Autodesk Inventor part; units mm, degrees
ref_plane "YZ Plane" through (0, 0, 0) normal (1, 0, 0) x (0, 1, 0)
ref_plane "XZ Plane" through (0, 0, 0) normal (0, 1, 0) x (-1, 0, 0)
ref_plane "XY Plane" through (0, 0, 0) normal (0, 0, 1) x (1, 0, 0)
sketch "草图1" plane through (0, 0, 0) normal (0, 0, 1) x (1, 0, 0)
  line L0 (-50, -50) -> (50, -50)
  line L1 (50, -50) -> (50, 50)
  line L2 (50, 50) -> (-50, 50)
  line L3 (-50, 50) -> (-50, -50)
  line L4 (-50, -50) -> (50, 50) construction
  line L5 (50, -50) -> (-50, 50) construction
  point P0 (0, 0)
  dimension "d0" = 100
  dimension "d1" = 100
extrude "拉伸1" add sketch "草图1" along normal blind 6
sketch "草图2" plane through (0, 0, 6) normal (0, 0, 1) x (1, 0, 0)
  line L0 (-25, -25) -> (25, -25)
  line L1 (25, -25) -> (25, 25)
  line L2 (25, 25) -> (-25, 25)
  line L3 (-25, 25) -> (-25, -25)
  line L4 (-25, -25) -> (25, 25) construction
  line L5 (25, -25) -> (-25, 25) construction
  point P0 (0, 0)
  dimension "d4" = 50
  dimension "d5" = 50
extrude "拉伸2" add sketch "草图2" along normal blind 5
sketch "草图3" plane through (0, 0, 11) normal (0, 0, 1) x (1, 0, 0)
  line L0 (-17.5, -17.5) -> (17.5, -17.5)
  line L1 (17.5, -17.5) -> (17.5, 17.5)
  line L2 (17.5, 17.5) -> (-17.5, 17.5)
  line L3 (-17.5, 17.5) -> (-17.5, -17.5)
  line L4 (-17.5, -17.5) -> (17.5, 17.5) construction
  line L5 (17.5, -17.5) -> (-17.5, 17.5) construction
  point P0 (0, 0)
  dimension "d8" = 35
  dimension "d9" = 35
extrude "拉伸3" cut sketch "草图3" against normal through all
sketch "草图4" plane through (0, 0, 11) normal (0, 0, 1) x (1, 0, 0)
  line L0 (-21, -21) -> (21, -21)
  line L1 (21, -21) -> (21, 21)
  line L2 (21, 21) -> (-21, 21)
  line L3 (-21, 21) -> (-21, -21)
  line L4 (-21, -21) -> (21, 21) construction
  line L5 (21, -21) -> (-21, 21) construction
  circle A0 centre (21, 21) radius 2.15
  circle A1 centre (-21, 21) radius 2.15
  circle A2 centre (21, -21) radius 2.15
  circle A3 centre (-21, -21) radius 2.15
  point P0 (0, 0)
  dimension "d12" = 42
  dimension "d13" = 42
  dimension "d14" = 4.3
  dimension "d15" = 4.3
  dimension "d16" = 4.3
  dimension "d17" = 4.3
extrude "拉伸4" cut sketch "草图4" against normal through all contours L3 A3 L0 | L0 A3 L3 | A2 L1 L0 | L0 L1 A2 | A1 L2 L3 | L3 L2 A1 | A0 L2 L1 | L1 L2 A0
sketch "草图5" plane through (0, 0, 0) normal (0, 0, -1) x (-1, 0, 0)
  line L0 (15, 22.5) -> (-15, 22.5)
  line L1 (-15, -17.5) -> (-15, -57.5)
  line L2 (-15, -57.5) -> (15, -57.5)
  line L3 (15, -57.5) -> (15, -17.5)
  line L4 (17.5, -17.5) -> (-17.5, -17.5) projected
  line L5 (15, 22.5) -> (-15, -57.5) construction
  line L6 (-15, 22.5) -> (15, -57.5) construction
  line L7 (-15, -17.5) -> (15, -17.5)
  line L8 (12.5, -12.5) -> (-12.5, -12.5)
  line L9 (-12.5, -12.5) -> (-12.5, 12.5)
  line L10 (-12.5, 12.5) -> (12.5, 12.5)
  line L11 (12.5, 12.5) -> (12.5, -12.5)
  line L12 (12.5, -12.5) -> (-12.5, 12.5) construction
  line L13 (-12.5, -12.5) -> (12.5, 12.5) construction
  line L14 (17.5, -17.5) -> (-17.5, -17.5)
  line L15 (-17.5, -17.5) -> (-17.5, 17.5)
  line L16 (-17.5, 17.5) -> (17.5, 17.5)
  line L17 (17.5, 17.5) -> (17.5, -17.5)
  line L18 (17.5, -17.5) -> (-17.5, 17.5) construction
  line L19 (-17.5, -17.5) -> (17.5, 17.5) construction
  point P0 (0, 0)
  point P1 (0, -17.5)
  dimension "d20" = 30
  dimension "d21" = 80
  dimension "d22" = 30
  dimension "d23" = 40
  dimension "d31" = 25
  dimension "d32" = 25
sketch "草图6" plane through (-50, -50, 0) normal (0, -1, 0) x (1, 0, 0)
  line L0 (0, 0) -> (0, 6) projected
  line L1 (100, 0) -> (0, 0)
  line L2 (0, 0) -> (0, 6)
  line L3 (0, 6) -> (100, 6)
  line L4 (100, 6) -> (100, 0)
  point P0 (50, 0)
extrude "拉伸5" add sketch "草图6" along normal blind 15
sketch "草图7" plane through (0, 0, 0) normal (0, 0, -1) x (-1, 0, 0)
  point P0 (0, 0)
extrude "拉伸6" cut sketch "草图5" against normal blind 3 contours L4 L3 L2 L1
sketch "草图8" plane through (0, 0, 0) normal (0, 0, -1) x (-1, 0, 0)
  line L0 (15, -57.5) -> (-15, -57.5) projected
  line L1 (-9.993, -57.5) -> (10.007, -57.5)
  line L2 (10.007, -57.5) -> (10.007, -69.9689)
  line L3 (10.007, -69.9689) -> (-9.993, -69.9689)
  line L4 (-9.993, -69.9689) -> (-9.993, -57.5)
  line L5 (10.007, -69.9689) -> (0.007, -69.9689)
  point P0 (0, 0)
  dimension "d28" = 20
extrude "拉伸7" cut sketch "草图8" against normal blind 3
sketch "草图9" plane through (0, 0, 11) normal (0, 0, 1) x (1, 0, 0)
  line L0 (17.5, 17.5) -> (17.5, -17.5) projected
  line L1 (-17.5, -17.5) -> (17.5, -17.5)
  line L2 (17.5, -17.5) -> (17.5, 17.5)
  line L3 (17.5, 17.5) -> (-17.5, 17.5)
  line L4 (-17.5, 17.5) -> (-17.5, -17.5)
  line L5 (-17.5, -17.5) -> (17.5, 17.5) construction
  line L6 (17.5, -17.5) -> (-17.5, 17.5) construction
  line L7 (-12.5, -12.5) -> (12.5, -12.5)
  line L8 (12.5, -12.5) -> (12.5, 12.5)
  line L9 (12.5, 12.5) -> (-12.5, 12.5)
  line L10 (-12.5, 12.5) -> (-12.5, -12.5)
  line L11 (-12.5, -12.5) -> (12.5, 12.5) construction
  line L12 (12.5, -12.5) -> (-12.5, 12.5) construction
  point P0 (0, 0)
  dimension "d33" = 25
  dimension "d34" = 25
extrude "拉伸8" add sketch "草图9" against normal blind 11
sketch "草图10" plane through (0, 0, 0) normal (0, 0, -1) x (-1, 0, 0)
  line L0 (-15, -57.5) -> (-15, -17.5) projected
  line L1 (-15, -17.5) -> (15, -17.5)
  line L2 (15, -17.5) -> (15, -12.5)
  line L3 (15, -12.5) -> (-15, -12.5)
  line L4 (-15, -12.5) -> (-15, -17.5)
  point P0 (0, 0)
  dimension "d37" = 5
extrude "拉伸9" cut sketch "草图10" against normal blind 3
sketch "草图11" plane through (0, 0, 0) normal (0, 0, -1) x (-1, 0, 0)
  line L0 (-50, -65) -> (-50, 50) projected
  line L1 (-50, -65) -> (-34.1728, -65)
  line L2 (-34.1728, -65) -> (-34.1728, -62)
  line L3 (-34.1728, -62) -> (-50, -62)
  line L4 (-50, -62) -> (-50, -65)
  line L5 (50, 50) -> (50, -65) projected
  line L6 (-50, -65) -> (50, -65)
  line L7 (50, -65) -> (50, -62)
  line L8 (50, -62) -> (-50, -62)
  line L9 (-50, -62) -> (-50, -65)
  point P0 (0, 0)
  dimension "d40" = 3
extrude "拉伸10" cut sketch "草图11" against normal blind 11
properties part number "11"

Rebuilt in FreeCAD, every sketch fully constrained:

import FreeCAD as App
import Part
import Sketcher

V = App.Vector
Q = App.Units.Quantity

doc = App.newDocument("Part")
body = doc.addObject("PartDesign::Body", "Body")

# Sketch on XY plane
sketch1 = doc.addObject("Sketcher::SketchObject", "Sketch")
body.addObject(sketch1)
sketch1.AttachmentSupport = (doc.XY_Plane, [""])
sketch1.MapMode = "FlatFace"
sketch1.addGeometry([
    Part.LineSegment(V(-50, 50, 0), V(-50, -50, 0)),
    Part.LineSegment(V(-50, -50, 0), V(50, -50, 0)),
    Part.LineSegment(V(50, -50, 0), V(50, 50, 0)),
    Part.LineSegment(V(50, 50, 0), V(-50, 50, 0)),
], False)
sketch1.addConstraint([
    Sketcher.Constraint("Coincident", 0, 2, 1, 1),
    Sketcher.Constraint("Coincident", 1, 2, 2, 1),
    Sketcher.Constraint("Coincident", 2, 2, 3, 1),
    Sketcher.Constraint("Coincident", 3, 2, 0, 1),
    Sketcher.Constraint("Vertical", 0),
    Sketcher.Constraint("Horizontal", 1),
    Sketcher.Constraint("Vertical", 2),
    Sketcher.Constraint("Horizontal", 3),
    Sketcher.Constraint("Symmetric", 0, 2, 2, 2, -1, 1),
    Sketcher.Constraint("Equal", 3, 0),
    Sketcher.Constraint("DistanceX", 1, 1, 1, 2, Q("100 mm")),
])
pad1 = doc.addObject("PartDesign::Pad", "Pad")
body.addObject(pad1)
pad1.Profile = sketch1
pad1.Length = 6

# Sketch on XY plane
sketch2 = doc.addObject("Sketcher::SketchObject", "Sketch001")
body.addObject(sketch2)
sketch2.AttachmentSupport = (doc.XY_Plane, [""])
sketch2.MapMode = "FlatFace"
sketch2.AttachmentOffset = App.Placement(V(0, 0, 6), App.Rotation())
sketch2.addGeometry([
    Part.LineSegment(V(-25, 25, 0), V(-25, -25, 0)),
    Part.LineSegment(V(-25, -25, 0), V(25, -25, 0)),
    Part.LineSegment(V(25, -25, 0), V(25, 25, 0)),
    Part.LineSegment(V(25, 25, 0), V(-25, 25, 0)),
], False)
sketch2.addConstraint([
    Sketcher.Constraint("Coincident", 0, 2, 1, 1),
    Sketcher.Constraint("Coincident", 1, 2, 2, 1),
    Sketcher.Constraint("Coincident", 2, 2, 3, 1),
    Sketcher.Constraint("Coincident", 3, 2, 0, 1),
    Sketcher.Constraint("Vertical", 0),
    Sketcher.Constraint("Horizontal", 1),
    Sketcher.Constraint("Vertical", 2),
    Sketcher.Constraint("Horizontal", 3),
    Sketcher.Constraint("Symmetric", 0, 2, 2, 2, -1, 1),
    Sketcher.Constraint("Equal", 3, 0),
    Sketcher.Constraint("DistanceX", 1, 1, 1, 2, Q("50 mm")),
])
pad2 = doc.addObject("PartDesign::Pad", "Pad001")
body.addObject(pad2)
pad2.Profile = sketch2
pad2.Length = 5

# Sketch on XY plane
sketch3 = doc.addObject("Sketcher::SketchObject", "Sketch002")
body.addObject(sketch3)
sketch3.AttachmentSupport = (doc.XY_Plane, [""])
sketch3.MapMode = "FlatFace"
sketch3.AttachmentOffset = App.Placement(V(0, 0, 11), App.Rotation())
sketch3.addGeometry([
    Part.LineSegment(V(-18, 18, 0), V(-18, -18, 0)),
    Part.LineSegment(V(-18, -18, 0), V(18, -18, 0)),
    Part.LineSegment(V(18, -18, 0), V(18, 18, 0)),
    Part.LineSegment(V(18, 18, 0), V(-18, 18, 0)),
], False)
sketch3.addConstraint([
    Sketcher.Constraint("Coincident", 0, 2, 1, 1),
    Sketcher.Constraint("Coincident", 1, 2, 2, 1),
    Sketcher.Constraint("Coincident", 2, 2, 3, 1),
    Sketcher.Constraint("Coincident", 3, 2, 0, 1),
    Sketcher.Constraint("Vertical", 0),
    Sketcher.Constraint("Horizontal", 1),
    Sketcher.Constraint("Vertical", 2),
    Sketcher.Constraint("Horizontal", 3),
    Sketcher.Constraint("Symmetric", 0, 2, 2, 2, -1, 1),
    Sketcher.Constraint("Equal", 3, 0),
    Sketcher.Constraint("DistanceX", 1, 1, 1, 2, Q("35 mm")),
])
pocket1 = doc.addObject("PartDesign::Pocket", "Pocket")
body.addObject(pocket1)
pocket1.Profile = sketch3
pocket1.Type = "ThroughAll"

# Sketch on XY plane
sketch4 = doc.addObject("Sketcher::SketchObject", "Sketch003")
body.addObject(sketch4)
sketch4.AttachmentSupport = (doc.XY_Plane, [""])
sketch4.MapMode = "FlatFace"
sketch4.AttachmentOffset = App.Placement(V(0, 0, 11), App.Rotation())
sketch4.addGeometry([
    Part.Circle(V(-21, -21, 0), V(0, 0, 1), 2.1),
    Part.Circle(V(21, -21, 0), V(0, 0, 1), 2.1),
    Part.Circle(V(-21, 21, 0), V(0, 0, 1), 2.1),
    Part.Circle(V(21, 21, 0), V(0, 0, 1), 2.1),
], False)
sketch4.addConstraint([
    Sketcher.Constraint("Equal", 0, 1),
    Sketcher.Constraint("Equal", 1, 2),
    Sketcher.Constraint("Equal", 2, 3),
    Sketcher.Constraint("Symmetric", 1, 3, 2, 3, -1, 1),
    Sketcher.Constraint("Symmetric", 0, 3, 3, 3, -1, 1),
    Sketcher.Constraint("Symmetric", 0, 3, 1, 3, -2),
    Sketcher.Constraint("Diameter", 0, Q("4.3 mm")),
    Sketcher.Constraint("DistanceX", 0, 3, 1, 3, Q("42 mm")),
    Sketcher.Constraint("DistanceY", 0, 3, 2, 3, Q("42 mm")),
])
pocket2 = doc.addObject("PartDesign::Pocket", "Pocket001")
body.addObject(pocket2)
pocket2.Profile = sketch4
pocket2.Type = "ThroughAll"

# Sketch on XZ plane
sketch5 = doc.addObject("Sketcher::SketchObject", "Sketch004")
body.addObject(sketch5)
sketch5.AttachmentSupport = (doc.XZ_Plane, [""])
sketch5.MapMode = "FlatFace"
sketch5.AttachmentOffset = App.Placement(V(0, 0, 50), App.Rotation())
sketch5.addGeometry([
    Part.LineSegment(V(-50, 6, 0), V(-50, 0, 0)),
    Part.LineSegment(V(-50, 0, 0), V(50, 0, 0)),
    Part.LineSegment(V(50, 0, 0), V(50, 6, 0)),
    Part.LineSegment(V(50, 6, 0), V(-50, 6, 0)),
], False)
sketch5.addConstraint([
    Sketcher.Constraint("Coincident", 0, 2, 1, 1),
    Sketcher.Constraint("Coincident", 1, 2, 2, 1),
    Sketcher.Constraint("Coincident", 2, 2, 3, 1),
    Sketcher.Constraint("Coincident", 3, 2, 0, 1),
    Sketcher.Constraint("Vertical", 0),
    Sketcher.Constraint("Horizontal", 1),
    Sketcher.Constraint("Vertical", 2),
    Sketcher.Constraint("Horizontal", 3),
    Sketcher.Constraint("Symmetric", 0, 2, 1, 2, -1, 1),
    Sketcher.Constraint("DistanceX", 1, 1, 1, 2, Q("100 mm")),
    Sketcher.Constraint("DistanceY", 0, 2, 0, 1, Q("6 mm")),
])
pad3 = doc.addObject("PartDesign::Pad", "Pad002")
body.addObject(pad3)
pad3.Profile = sketch5
pad3.Length = 15

# Sketch on XY plane
sketch6 = doc.addObject("Sketcher::SketchObject", "Sketch005")
body.addObject(sketch6)
sketch6.AttachmentSupport = (doc.XY_Plane, [""])
sketch6.MapMode = "FlatFace"
sketch6.addGeometry([
    Part.LineSegment(V(-15, -18, 0), V(15, -18, 0)),
    Part.LineSegment(V(15, -18, 0), V(15, -58, 0)),
    Part.LineSegment(V(15, -58, 0), V(-15, -58, 0)),
    Part.LineSegment(V(-15, -58, 0), V(-15, -18, 0)),
], False)
sketch6.addConstraint([
    Sketcher.Constraint("Coincident", 0, 2, 1, 1),
    Sketcher.Constraint("Coincident", 1, 2, 2, 1),
    Sketcher.Constraint("Coincident", 2, 2, 3, 1),
    Sketcher.Constraint("Coincident", 3, 2, 0, 1),
    Sketcher.Constraint("Horizontal", 0),
    Sketcher.Constraint("Vertical", 1),
    Sketcher.Constraint("Horizontal", 2),
    Sketcher.Constraint("Vertical", 3),
    Sketcher.Constraint("DistanceX", 0, 1, 0, 2, Q("30 mm")),
    Sketcher.Constraint("DistanceY", 1, 2, 1, 1, Q("40 mm")),
    Sketcher.Constraint("DistanceX", -1, 1, 0, 2, Q("15 mm")),
    Sketcher.Constraint("DistanceY", 0, 2, -1, 1, Q("17.5 mm")),
])
pocket3 = doc.addObject("PartDesign::Pocket", "Pocket002")
body.addObject(pocket3)
pocket3.Profile = sketch6
pocket3.Length = 3
pocket3.Reversed = True

# Sketch on XY plane
sketch7 = doc.addObject("Sketcher::SketchObject", "Sketch006")
body.addObject(sketch7)
sketch7.AttachmentSupport = (doc.XY_Plane, [""])
sketch7.MapMode = "FlatFace"
sketch7.addGeometry([
    Part.LineSegment(V(-10, -70, 0), V(-10, -58, 0)),
    Part.LineSegment(V(-10, -58, 0), V(10, -58, 0)),
    Part.LineSegment(V(10, -58, 0), V(10, -70, 0)),
    Part.LineSegment(V(10, -70, 0), V(-10, -70, 0)),
], False)
sketch7.addConstraint([
    Sketcher.Constraint("Coincident", 0, 2, 1, 1),
    Sketcher.Constraint("Coincident", 1, 2, 2, 1),
    Sketcher.Constraint("Coincident", 2, 2, 3, 1),
    Sketcher.Constraint("Coincident", 3, 2, 0, 1),
    Sketcher.Constraint("Vertical", 0),
    Sketcher.Constraint("Horizontal", 1),
    Sketcher.Constraint("Vertical", 2),
    Sketcher.Constraint("Horizontal", 3),
    Sketcher.Constraint("DistanceX", 1, 1, 1, 2, Q("20 mm")),
    Sketcher.Constraint("DistanceY", 0, 2, -1, 1, Q("57.5 mm")),
    Sketcher.Constraint("DistanceY", 0, 1, 0, 2, Q("12.469 mm")),
    Sketcher.Constraint("DistanceX", 0, 2, -1, 1, Q("10.007 mm")),
])
pocket4 = doc.addObject("PartDesign::Pocket", "Pocket003")
body.addObject(pocket4)
pocket4.Profile = sketch7
pocket4.Length = 3
pocket4.Reversed = True

# Sketch on XY plane
sketch8 = doc.addObject("Sketcher::SketchObject", "Sketch007")
body.addObject(sketch8)
sketch8.AttachmentSupport = (doc.XY_Plane, [""])
sketch8.MapMode = "FlatFace"
sketch8.AttachmentOffset = App.Placement(V(0, 0, 11), App.Rotation())
sketch8.addGeometry([
    Part.LineSegment(V(18, -18, 0), V(18, 18, 0)),  # 0
    Part.LineSegment(V(18, 18, 0), V(-18, 18, 0)),  # 1
    Part.LineSegment(V(-18, 18, 0), V(-18, -18, 0)),  # 2
    Part.LineSegment(V(-18, -18, 0), V(18, -18, 0)),  # 3
    Part.LineSegment(V(12, -12, 0), V(-12, -12, 0)),  # 4
    Part.LineSegment(V(-12, -12, 0), V(-12, 12, 0)),  # 5
    Part.LineSegment(V(-12, 12, 0), V(12, 12, 0)),  # 6
    Part.LineSegment(V(12, 12, 0), V(12, -12, 0)),  # 7
], False)
sketch8.addConstraint([
    Sketcher.Constraint("Coincident", 0, 2, 1, 1),
    Sketcher.Constraint("Coincident", 1, 2, 2, 1),
    Sketcher.Constraint("Coincident", 2, 2, 3, 1),
    Sketcher.Constraint("Coincident", 3, 2, 0, 1),
    Sketcher.Constraint("Coincident", 4, 2, 5, 1),
    Sketcher.Constraint("Coincident", 5, 2, 6, 1),
    Sketcher.Constraint("Coincident", 6, 2, 7, 1),
    Sketcher.Constraint("Coincident", 7, 2, 4, 1),
    Sketcher.Constraint("Vertical", 0),
    Sketcher.Constraint("Horizontal", 1),
    Sketcher.Constraint("Vertical", 2),
    Sketcher.Constraint("Horizontal", 3),
    Sketcher.Constraint("Horizontal", 4),
    Sketcher.Constraint("Vertical", 5),
    Sketcher.Constraint("Horizontal", 6),
    Sketcher.Constraint("Vertical", 7),
    Sketcher.Constraint("Symmetric", 0, 2, 2, 2, -1, 1),
    Sketcher.Constraint("Symmetric", 4, 2, 6, 2, -1, 1),
    Sketcher.Constraint("Equal", 3, 0),
    Sketcher.Constraint("Equal", 6, 5),
    Sketcher.Constraint("DistanceX", 4, 2, 4, 1, Q("25 mm")),
    Sketcher.Constraint("DistanceX", 1, 2, 1, 1, Q("35 mm")),
])
pad4 = doc.addObject("PartDesign::Pad", "Pad003")
body.addObject(pad4)
pad4.Profile = sketch8
pad4.Length = 11
pad4.Reversed = True

# Sketch on XY plane
sketch9 = doc.addObject("Sketcher::SketchObject", "Sketch008")
body.addObject(sketch9)
sketch9.AttachmentSupport = (doc.XY_Plane, [""])
sketch9.MapMode = "FlatFace"
sketch9.addGeometry([
    Part.LineSegment(V(15, -12, 0), V(15, -18, 0)),
    Part.LineSegment(V(15, -18, 0), V(-15, -18, 0)),
    Part.LineSegment(V(-15, -18, 0), V(-15, -12, 0)),
    Part.LineSegment(V(-15, -12, 0), V(15, -12, 0)),
], False)
sketch9.addConstraint([
    Sketcher.Constraint("Coincident", 0, 2, 1, 1),
    Sketcher.Constraint("Coincident", 1, 2, 2, 1),
    Sketcher.Constraint("Coincident", 2, 2, 3, 1),
    Sketcher.Constraint("Coincident", 3, 2, 0, 1),
    Sketcher.Constraint("Vertical", 0),
    Sketcher.Constraint("Horizontal", 1),
    Sketcher.Constraint("Vertical", 2),
    Sketcher.Constraint("Horizontal", 3),
    Sketcher.Constraint("DistanceY", 0, 2, 0, 1, Q("5 mm")),
    Sketcher.Constraint("DistanceX", 1, 2, 1, 1, Q("30 mm")),
    Sketcher.Constraint("DistanceX", -1, 1, 0, 2, Q("15 mm")),
    Sketcher.Constraint("DistanceY", 0, 2, -1, 1, Q("17.5 mm")),
])
pocket5 = doc.addObject("PartDesign::Pocket", "Pocket004")
body.addObject(pocket5)
pocket5.Profile = sketch9
pocket5.Length = 3
pocket5.Reversed = True

# Sketch on XY plane
sketch10 = doc.addObject("Sketcher::SketchObject", "Sketch009")
body.addObject(sketch10)
sketch10.AttachmentSupport = (doc.XY_Plane, [""])
sketch10.MapMode = "FlatFace"
sketch10.addGeometry([
    Part.LineSegment(V(50, -62, 0), V(50, -65, 0)),
    Part.LineSegment(V(50, -65, 0), V(-50, -65, 0)),
    Part.LineSegment(V(-50, -65, 0), V(-50, -62, 0)),
    Part.LineSegment(V(-50, -62, 0), V(50, -62, 0)),
], False)
sketch10.addConstraint([
    Sketcher.Constraint("Coincident", 0, 2, 1, 1),
    Sketcher.Constraint("Coincident", 1, 2, 2, 1),
    Sketcher.Constraint("Coincident", 2, 2, 3, 1),
    Sketcher.Constraint("Coincident", 3, 2, 0, 1),
    Sketcher.Constraint("Vertical", 0),
    Sketcher.Constraint("Horizontal", 1),
    Sketcher.Constraint("Vertical", 2),
    Sketcher.Constraint("Horizontal", 3),
    Sketcher.Constraint("DistanceY", 0, 2, 0, 1, Q("3 mm")),
    Sketcher.Constraint("DistanceX", 1, 2, 1, 1, Q("100 mm")),
    Sketcher.Constraint("DistanceX", -1, 1, 0, 2, Q("50 mm")),
    Sketcher.Constraint("DistanceY", 0, 2, -1, 1, Q("65 mm")),
])
pocket6 = doc.addObject("PartDesign::Pocket", "Pocket005")
body.addObject(pocket6)
pocket6.Profile = sketch10
pocket6.Length = 11
pocket6.Reversed = True

doc.recompute()
